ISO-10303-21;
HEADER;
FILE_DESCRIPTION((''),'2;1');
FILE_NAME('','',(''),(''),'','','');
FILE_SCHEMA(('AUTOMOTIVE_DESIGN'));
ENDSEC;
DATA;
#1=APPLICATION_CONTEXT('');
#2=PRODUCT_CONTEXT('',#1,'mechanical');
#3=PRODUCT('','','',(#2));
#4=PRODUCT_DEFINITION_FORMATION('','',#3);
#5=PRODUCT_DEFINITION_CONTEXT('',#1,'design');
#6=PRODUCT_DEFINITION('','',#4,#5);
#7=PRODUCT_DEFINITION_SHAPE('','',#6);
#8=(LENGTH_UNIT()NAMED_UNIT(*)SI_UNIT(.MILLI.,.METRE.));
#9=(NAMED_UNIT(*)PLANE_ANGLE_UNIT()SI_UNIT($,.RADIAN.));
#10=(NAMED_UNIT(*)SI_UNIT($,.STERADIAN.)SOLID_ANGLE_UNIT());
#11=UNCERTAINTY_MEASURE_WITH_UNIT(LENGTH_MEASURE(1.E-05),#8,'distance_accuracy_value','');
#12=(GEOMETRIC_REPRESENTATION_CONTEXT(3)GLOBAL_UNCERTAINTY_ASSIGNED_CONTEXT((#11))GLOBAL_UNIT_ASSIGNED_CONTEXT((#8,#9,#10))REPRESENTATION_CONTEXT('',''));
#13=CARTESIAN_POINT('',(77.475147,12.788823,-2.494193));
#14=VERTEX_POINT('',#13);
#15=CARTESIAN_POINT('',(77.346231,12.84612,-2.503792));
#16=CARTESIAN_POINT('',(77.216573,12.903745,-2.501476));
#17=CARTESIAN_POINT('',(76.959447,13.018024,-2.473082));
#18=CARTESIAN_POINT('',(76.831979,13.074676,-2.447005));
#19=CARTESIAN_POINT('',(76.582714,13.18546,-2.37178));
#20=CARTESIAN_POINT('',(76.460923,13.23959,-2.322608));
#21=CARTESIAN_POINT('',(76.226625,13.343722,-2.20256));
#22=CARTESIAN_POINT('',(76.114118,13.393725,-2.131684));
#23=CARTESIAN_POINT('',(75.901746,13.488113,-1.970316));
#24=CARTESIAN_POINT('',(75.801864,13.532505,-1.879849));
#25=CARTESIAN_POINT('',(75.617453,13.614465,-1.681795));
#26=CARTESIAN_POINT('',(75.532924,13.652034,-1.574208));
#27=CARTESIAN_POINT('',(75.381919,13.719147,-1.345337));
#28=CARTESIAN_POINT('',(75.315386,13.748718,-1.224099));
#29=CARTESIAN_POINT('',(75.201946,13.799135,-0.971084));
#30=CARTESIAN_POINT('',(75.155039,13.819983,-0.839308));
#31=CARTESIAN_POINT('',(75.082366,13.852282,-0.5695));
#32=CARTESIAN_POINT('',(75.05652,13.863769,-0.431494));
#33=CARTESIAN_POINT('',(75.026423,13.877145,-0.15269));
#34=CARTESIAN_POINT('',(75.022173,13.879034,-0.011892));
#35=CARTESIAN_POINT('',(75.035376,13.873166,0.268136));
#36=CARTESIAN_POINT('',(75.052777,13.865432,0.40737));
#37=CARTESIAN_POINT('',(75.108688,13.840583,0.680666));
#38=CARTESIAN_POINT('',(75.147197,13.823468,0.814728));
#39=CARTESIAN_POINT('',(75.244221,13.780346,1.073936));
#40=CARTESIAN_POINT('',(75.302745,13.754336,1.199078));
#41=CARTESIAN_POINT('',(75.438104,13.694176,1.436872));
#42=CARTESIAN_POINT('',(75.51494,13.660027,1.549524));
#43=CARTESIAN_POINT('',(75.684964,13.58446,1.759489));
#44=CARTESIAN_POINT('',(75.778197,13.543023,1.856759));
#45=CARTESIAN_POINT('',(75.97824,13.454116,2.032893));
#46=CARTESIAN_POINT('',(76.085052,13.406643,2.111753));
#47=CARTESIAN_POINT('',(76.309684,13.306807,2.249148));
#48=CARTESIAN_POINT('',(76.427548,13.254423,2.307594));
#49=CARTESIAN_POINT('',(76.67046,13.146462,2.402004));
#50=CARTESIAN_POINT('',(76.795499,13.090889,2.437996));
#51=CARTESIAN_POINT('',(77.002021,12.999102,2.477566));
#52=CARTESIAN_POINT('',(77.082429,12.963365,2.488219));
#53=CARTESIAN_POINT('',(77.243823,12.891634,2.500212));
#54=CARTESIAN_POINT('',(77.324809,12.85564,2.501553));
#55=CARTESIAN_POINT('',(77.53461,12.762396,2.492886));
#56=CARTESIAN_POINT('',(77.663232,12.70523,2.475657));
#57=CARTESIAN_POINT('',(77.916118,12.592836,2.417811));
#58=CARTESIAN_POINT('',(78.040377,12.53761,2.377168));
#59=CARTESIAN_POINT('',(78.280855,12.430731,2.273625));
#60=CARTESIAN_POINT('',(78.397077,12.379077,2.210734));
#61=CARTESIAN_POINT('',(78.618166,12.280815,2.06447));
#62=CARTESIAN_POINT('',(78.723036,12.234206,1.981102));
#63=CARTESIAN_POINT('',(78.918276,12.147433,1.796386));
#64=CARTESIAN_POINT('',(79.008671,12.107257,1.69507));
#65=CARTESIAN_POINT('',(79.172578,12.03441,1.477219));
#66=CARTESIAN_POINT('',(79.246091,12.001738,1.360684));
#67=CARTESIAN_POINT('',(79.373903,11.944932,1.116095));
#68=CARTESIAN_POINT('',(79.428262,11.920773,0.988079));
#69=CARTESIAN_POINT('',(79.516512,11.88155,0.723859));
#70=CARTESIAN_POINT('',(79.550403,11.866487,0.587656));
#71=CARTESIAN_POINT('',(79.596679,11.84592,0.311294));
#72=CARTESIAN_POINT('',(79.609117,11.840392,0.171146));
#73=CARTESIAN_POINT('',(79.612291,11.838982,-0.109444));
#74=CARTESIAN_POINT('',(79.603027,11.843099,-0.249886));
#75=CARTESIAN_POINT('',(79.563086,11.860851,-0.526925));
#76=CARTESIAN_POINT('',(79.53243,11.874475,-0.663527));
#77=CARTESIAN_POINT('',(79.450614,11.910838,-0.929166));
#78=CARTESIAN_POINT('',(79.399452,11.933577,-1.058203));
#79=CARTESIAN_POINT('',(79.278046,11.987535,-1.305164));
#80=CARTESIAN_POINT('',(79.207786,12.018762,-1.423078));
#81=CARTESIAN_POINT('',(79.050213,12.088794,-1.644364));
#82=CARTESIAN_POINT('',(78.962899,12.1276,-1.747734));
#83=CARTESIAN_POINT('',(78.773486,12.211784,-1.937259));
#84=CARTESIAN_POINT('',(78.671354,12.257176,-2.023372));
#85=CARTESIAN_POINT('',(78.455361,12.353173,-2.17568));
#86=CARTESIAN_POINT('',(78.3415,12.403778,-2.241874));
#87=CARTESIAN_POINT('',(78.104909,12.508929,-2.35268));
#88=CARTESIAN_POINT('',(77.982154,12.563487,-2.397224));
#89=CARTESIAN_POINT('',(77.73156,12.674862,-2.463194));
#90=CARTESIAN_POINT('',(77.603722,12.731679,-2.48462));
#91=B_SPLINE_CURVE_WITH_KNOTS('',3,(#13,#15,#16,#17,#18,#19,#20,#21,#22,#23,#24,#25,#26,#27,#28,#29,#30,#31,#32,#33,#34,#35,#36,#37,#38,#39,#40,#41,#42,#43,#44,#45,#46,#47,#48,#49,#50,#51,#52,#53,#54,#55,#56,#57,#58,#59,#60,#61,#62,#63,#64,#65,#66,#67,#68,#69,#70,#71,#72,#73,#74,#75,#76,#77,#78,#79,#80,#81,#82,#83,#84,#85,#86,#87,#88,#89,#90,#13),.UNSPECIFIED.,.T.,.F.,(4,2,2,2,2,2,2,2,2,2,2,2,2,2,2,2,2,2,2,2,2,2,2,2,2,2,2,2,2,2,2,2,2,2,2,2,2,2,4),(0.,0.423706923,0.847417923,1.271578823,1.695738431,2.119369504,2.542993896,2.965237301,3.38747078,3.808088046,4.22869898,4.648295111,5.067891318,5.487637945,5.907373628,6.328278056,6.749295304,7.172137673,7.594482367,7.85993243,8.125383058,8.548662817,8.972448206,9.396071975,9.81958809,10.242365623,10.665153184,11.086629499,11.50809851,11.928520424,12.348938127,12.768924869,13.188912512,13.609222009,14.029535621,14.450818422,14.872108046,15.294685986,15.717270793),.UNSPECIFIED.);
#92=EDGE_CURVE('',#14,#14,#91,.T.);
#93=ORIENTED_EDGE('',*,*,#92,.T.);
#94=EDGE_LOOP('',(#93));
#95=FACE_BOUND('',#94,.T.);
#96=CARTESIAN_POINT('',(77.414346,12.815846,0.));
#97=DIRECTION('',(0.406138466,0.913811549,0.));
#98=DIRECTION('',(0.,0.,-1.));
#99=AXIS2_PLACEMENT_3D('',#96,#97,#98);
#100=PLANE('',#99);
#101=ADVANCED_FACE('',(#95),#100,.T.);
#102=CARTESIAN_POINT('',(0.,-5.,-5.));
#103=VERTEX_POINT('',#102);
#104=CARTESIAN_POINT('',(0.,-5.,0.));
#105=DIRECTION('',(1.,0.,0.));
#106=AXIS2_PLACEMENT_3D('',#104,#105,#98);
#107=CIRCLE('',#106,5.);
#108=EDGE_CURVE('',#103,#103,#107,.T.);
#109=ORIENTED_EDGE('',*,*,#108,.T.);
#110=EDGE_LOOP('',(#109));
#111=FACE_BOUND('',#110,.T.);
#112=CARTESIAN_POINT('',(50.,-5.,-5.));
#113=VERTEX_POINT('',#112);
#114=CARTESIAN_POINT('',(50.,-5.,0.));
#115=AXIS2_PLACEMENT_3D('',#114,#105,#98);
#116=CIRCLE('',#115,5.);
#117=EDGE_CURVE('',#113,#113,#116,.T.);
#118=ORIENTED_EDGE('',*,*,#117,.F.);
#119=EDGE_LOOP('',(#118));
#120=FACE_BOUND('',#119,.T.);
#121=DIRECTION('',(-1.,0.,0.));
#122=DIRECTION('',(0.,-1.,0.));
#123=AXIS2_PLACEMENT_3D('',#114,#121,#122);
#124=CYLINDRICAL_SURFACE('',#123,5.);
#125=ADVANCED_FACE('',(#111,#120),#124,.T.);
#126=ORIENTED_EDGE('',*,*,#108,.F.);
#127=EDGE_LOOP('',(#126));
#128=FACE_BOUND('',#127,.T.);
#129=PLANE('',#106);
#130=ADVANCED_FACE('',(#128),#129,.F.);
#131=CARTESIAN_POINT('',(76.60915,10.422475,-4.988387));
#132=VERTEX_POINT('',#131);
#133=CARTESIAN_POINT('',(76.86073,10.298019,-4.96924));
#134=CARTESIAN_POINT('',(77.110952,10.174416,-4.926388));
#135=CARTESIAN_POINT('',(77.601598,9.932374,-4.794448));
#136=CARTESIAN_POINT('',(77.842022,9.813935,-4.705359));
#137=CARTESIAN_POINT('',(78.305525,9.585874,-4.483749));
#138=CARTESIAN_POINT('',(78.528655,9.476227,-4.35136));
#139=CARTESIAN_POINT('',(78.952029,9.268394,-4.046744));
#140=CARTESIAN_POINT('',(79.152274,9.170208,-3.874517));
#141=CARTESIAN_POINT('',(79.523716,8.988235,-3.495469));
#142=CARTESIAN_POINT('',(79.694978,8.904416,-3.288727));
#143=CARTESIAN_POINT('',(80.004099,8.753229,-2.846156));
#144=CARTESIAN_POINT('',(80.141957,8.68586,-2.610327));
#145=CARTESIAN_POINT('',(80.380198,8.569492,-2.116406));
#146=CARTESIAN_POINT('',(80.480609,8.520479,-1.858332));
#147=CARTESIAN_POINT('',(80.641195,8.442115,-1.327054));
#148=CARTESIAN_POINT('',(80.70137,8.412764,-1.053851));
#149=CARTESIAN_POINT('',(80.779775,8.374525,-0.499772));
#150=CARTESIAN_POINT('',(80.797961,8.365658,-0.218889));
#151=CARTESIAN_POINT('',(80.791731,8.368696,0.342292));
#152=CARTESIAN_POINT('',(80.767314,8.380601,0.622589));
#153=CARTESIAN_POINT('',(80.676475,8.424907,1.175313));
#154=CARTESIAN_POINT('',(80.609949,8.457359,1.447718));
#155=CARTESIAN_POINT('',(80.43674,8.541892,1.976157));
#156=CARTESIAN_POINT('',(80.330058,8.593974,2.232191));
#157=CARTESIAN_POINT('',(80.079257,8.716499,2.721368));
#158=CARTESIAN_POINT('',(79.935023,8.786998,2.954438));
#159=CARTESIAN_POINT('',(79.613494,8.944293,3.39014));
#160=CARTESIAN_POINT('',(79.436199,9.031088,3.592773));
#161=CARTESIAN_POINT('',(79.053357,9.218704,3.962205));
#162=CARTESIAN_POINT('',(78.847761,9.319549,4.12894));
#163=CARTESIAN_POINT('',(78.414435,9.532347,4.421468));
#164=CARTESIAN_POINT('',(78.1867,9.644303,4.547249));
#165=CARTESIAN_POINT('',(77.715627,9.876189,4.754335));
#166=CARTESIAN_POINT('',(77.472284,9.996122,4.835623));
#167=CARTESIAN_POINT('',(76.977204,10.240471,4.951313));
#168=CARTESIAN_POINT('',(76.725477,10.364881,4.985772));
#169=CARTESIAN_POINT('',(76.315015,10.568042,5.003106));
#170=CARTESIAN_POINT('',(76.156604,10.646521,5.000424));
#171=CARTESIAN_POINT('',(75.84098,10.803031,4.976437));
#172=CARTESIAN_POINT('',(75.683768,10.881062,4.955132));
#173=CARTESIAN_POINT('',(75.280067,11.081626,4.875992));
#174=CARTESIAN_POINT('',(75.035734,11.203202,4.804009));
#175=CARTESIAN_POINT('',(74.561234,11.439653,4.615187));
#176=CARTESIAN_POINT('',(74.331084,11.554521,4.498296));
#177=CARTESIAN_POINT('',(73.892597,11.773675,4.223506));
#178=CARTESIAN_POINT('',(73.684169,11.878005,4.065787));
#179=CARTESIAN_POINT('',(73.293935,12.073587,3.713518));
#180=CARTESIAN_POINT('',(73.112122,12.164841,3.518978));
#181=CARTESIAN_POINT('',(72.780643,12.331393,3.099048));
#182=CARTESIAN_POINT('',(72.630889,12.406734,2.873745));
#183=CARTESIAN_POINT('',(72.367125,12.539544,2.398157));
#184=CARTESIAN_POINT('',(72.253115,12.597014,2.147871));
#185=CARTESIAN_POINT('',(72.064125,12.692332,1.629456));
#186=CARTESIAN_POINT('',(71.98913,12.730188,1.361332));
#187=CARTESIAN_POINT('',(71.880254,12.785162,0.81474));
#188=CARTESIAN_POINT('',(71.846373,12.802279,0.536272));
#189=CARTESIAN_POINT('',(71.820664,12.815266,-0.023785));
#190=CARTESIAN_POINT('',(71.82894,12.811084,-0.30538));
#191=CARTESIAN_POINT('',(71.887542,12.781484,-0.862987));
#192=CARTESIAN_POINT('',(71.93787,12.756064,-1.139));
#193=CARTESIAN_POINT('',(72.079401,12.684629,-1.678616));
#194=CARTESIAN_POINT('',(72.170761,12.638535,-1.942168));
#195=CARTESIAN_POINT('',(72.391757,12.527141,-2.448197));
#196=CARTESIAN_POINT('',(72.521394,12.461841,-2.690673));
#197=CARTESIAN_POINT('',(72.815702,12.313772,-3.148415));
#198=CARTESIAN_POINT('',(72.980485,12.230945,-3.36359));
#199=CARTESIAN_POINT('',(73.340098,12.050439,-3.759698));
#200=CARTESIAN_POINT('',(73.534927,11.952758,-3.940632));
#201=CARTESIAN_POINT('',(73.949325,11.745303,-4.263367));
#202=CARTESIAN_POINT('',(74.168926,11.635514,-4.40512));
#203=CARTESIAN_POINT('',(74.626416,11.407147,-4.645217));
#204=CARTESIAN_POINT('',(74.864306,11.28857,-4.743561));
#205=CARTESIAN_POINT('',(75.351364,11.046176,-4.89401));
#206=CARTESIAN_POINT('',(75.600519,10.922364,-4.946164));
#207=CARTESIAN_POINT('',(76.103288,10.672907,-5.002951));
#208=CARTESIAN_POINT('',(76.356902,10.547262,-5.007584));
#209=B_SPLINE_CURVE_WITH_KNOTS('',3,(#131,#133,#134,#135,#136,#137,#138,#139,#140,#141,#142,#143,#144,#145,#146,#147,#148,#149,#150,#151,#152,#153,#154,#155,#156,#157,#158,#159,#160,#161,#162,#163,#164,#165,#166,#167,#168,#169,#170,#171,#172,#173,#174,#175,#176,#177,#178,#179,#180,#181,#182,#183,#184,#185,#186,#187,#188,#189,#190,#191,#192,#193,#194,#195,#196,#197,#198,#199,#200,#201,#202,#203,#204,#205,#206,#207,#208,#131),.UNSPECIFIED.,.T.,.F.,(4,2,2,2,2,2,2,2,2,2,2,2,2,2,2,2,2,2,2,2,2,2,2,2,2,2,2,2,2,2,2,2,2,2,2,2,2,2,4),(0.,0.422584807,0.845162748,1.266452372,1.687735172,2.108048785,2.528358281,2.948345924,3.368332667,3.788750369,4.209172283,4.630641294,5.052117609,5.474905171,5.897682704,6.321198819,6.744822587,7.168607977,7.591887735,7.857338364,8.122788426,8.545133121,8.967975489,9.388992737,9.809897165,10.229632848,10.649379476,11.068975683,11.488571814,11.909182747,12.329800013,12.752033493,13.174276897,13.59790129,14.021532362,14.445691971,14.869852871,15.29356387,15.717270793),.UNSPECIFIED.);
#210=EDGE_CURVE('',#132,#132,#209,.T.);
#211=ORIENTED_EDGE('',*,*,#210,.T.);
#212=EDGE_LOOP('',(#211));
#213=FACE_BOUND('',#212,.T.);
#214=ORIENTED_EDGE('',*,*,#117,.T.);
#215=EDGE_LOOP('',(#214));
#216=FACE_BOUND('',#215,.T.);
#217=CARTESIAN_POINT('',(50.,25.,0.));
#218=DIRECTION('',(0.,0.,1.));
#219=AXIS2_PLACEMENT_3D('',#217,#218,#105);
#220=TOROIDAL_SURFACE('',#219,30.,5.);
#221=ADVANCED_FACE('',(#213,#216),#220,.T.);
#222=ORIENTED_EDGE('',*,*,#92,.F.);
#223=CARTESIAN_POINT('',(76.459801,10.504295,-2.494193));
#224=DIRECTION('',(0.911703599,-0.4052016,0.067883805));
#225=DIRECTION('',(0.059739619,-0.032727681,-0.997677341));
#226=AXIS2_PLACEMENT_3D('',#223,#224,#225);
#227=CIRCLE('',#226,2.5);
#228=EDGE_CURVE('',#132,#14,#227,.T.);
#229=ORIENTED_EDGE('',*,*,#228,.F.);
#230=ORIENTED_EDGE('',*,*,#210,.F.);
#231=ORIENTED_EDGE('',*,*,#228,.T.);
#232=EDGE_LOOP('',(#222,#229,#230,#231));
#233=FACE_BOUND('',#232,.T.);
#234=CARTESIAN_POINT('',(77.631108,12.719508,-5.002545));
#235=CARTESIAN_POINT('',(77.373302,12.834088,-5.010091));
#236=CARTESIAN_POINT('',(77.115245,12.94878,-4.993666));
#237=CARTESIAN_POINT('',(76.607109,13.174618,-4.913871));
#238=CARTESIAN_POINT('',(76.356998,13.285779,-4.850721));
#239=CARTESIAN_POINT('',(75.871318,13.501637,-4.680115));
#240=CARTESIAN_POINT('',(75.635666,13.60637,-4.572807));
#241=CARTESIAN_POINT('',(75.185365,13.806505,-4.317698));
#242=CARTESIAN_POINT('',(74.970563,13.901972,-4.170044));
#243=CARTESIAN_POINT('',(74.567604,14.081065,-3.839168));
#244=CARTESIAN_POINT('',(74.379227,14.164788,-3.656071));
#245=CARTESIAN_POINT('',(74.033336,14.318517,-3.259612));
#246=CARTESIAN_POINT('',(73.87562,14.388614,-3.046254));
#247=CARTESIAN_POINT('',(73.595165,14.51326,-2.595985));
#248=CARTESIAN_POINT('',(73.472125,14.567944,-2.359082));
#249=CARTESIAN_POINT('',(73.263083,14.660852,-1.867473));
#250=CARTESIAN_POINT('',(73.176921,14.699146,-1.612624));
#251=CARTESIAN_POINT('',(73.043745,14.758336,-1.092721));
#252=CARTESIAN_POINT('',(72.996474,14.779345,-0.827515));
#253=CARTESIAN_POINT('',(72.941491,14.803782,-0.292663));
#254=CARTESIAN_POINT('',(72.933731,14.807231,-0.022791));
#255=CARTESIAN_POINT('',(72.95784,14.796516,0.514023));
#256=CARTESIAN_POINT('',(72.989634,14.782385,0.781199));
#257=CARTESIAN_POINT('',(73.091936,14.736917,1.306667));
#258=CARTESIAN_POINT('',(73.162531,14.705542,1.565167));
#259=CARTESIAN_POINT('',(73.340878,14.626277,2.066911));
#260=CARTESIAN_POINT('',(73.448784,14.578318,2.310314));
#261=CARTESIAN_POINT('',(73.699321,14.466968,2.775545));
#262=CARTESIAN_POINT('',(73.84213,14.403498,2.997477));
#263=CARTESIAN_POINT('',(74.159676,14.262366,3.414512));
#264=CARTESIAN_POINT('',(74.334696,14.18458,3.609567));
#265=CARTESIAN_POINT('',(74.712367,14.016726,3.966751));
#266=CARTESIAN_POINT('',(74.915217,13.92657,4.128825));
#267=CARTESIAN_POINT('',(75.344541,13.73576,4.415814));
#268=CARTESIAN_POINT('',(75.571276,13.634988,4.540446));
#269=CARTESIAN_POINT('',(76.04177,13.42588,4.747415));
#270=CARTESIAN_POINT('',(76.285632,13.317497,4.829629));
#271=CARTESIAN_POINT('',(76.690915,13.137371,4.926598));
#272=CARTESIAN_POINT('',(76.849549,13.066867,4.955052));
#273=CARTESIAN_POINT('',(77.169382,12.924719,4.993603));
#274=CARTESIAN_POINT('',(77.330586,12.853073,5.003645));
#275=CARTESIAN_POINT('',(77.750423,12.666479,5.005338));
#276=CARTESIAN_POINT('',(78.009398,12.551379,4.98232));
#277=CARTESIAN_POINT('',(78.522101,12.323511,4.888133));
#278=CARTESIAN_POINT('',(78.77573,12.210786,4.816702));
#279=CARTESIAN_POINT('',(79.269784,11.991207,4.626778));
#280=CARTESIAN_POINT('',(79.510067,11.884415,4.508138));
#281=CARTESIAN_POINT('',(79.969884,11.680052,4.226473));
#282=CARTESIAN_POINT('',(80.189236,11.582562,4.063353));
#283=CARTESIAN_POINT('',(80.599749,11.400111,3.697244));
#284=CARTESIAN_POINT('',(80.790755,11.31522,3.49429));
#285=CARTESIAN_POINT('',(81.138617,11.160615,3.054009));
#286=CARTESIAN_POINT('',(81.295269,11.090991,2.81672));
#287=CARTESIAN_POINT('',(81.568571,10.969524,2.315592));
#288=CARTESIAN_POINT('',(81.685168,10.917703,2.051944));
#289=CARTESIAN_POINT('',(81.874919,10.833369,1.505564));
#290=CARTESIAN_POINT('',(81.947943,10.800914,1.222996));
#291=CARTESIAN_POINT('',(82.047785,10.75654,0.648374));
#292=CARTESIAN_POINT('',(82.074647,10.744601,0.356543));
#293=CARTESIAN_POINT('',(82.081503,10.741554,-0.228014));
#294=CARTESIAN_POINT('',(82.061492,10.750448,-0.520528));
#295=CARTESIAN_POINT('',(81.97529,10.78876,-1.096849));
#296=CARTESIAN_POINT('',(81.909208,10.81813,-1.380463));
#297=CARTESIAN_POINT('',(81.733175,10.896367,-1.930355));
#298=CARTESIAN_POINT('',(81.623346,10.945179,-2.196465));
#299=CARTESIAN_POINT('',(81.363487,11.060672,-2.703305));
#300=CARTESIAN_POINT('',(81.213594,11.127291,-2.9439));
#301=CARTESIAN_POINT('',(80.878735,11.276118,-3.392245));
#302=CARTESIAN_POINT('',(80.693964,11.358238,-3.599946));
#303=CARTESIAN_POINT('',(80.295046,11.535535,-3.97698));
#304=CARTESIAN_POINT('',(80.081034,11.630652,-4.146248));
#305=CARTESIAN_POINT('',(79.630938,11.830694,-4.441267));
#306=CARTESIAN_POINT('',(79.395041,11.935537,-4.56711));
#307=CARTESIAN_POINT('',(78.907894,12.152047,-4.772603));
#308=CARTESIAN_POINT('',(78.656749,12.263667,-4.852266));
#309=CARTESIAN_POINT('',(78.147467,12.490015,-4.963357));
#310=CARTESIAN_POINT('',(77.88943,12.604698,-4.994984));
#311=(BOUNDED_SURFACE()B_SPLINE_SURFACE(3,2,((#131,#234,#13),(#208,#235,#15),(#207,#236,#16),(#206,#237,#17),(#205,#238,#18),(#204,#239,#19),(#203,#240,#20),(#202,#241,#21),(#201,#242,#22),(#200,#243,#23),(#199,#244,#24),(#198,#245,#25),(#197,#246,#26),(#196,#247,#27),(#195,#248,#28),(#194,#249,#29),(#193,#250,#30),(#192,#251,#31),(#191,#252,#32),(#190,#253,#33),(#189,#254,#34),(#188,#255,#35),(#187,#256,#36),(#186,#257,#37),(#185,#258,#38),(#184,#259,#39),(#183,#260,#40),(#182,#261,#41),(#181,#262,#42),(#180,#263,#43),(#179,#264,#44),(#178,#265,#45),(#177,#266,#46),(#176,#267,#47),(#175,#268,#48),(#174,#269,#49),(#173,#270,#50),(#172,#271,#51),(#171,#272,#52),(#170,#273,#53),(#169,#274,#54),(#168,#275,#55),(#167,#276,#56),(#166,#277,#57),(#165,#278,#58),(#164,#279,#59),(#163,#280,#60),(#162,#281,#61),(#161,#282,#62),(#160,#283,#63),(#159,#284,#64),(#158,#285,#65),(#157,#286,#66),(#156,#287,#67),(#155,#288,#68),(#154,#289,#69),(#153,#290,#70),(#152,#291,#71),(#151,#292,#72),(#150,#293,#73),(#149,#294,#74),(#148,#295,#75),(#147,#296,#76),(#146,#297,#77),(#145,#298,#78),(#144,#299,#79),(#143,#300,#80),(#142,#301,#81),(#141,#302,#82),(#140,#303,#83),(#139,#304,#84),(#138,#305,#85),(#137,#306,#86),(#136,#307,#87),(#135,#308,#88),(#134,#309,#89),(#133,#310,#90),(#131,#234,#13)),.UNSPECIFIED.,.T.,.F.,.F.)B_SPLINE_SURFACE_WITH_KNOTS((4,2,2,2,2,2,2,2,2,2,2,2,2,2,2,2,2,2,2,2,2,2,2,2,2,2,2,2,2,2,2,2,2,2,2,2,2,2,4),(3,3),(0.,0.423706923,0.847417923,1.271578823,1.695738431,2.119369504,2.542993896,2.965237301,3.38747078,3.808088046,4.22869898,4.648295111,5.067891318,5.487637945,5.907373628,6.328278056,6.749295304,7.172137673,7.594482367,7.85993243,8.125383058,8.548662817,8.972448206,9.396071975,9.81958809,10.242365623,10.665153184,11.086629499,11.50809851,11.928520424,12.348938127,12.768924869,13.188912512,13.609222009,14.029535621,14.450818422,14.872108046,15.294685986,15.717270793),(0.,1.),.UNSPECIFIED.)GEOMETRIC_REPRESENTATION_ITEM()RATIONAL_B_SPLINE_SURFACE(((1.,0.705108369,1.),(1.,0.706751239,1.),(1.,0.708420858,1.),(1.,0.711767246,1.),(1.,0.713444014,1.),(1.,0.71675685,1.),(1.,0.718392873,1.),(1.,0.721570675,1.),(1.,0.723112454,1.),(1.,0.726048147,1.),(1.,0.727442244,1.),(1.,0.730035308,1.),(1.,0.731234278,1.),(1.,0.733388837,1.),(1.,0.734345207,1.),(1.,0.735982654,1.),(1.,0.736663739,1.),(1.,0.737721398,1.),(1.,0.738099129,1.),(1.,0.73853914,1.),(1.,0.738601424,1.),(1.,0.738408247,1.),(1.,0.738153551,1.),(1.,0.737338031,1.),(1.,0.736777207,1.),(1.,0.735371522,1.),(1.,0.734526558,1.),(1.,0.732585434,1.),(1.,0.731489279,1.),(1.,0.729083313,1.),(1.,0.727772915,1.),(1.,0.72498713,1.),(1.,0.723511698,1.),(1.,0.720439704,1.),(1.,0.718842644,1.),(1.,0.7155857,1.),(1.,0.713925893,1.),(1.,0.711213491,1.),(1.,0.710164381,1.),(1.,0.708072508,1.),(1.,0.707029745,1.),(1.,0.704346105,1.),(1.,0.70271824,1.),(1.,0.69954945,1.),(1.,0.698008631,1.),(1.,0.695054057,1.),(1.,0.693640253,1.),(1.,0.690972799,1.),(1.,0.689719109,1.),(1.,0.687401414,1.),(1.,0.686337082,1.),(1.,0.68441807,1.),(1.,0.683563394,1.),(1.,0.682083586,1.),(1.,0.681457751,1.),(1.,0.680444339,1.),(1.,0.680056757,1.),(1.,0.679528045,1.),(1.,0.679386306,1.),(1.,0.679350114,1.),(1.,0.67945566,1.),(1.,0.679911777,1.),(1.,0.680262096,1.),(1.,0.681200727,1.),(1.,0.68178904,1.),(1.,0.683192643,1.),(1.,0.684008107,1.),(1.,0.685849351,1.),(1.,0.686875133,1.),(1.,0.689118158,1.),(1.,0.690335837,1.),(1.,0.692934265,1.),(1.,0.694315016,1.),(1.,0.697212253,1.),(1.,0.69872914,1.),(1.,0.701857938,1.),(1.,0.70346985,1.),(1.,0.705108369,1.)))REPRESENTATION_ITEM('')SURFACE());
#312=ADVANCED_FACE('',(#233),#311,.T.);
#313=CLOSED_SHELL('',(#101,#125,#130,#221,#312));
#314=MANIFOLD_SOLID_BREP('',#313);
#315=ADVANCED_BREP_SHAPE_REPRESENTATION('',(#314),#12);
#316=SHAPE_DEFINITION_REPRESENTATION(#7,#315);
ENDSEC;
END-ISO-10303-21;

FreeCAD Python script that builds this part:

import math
import FreeCAD as App
import Part
import Sketcher

V = App.Vector


def edges_at(feature, points):
    """Names of the edges that pass closest to the given points."""
    edges = feature.Shape.Edges
    near = lambda p: min(range(len(edges)), key=lambda i: edges[i].distToShape(Part.Vertex(*p))[0])
    return sorted({f"Edge{near(p) + 1}" for p in points})

doc = App.newDocument("Part")
body = doc.addObject("PartDesign::Body", "Body")

# Sketch on YZ plane
sketch1 = body.newObject("Sketcher::SketchObject", "Sketch")
sketch1.AttachmentSupport = (doc.getObject("YZ_Plane"), [""])
sketch1.MapMode = "FlatFace"
sketch1.addGeometry(Part.Circle(V(-5, 0, 0), V(0, 0, 1), 5), False)
sketch1.addConstraint(Sketcher.Constraint("PointOnObject", 0, 3, -1))
sketch1.addConstraint(Sketcher.Constraint("Diameter", 0, 10.0))
sketch1.addConstraint(Sketcher.Constraint("DistanceX", 0, 3, -1, 1, 5.0))

# Sketch on XY plane
sketch2 = body.newObject("Sketcher::SketchObject", "Sketch001")
sketch2.AttachmentSupport = (doc.getObject("XY_Plane"), [""])
sketch2.MapMode = "FlatFace"
sketch2.addGeometry(Part.LineSegment(V(0, -5, 0), V(50, -5, 0)), False)
sketch2.addGeometry(Part.ArcOfCircle(Part.Circle(V(50, 25, 0), V(0, 0, 1), 30), math.radians(-90), math.radians(-23.962489)), False)
sketch2.addConstraint(Sketcher.Constraint("Tangent", 0, 2, 1, 1))
sketch2.addConstraint(Sketcher.Constraint("Horizontal", 0))
sketch2.addConstraint(Sketcher.Constraint("PointOnObject", 0, 1, -2))
sketch2.addConstraint(Sketcher.Constraint("Radius", 1, 30.0))
sketch2.addConstraint(Sketcher.Constraint("DistanceX", 0, 1, 0, 2, 50.0))
sketch2.addConstraint(Sketcher.Constraint("DistanceY", -1, 1, 1, 3, 25.0))
sketch2.addConstraint(Sketcher.Constraint("DistanceX", -1, 1, 1, 2, 77.414346))
doc.recompute()

additivepipe = body.newObject("PartDesign::AdditivePipe", "AdditivePipe")
additivepipe.Profile = sketch1
additivepipe.Spine = (sketch2, ["Edge1", "Edge2"])
doc.recompute()

fillet = body.newObject("PartDesign::Fillet", "Fillet")
fillet.Base = (additivepipe, edges_at(additivepipe, [(77.414, 12.816, 5)]))
fillet.Radius = 2.5

doc.recompute()
